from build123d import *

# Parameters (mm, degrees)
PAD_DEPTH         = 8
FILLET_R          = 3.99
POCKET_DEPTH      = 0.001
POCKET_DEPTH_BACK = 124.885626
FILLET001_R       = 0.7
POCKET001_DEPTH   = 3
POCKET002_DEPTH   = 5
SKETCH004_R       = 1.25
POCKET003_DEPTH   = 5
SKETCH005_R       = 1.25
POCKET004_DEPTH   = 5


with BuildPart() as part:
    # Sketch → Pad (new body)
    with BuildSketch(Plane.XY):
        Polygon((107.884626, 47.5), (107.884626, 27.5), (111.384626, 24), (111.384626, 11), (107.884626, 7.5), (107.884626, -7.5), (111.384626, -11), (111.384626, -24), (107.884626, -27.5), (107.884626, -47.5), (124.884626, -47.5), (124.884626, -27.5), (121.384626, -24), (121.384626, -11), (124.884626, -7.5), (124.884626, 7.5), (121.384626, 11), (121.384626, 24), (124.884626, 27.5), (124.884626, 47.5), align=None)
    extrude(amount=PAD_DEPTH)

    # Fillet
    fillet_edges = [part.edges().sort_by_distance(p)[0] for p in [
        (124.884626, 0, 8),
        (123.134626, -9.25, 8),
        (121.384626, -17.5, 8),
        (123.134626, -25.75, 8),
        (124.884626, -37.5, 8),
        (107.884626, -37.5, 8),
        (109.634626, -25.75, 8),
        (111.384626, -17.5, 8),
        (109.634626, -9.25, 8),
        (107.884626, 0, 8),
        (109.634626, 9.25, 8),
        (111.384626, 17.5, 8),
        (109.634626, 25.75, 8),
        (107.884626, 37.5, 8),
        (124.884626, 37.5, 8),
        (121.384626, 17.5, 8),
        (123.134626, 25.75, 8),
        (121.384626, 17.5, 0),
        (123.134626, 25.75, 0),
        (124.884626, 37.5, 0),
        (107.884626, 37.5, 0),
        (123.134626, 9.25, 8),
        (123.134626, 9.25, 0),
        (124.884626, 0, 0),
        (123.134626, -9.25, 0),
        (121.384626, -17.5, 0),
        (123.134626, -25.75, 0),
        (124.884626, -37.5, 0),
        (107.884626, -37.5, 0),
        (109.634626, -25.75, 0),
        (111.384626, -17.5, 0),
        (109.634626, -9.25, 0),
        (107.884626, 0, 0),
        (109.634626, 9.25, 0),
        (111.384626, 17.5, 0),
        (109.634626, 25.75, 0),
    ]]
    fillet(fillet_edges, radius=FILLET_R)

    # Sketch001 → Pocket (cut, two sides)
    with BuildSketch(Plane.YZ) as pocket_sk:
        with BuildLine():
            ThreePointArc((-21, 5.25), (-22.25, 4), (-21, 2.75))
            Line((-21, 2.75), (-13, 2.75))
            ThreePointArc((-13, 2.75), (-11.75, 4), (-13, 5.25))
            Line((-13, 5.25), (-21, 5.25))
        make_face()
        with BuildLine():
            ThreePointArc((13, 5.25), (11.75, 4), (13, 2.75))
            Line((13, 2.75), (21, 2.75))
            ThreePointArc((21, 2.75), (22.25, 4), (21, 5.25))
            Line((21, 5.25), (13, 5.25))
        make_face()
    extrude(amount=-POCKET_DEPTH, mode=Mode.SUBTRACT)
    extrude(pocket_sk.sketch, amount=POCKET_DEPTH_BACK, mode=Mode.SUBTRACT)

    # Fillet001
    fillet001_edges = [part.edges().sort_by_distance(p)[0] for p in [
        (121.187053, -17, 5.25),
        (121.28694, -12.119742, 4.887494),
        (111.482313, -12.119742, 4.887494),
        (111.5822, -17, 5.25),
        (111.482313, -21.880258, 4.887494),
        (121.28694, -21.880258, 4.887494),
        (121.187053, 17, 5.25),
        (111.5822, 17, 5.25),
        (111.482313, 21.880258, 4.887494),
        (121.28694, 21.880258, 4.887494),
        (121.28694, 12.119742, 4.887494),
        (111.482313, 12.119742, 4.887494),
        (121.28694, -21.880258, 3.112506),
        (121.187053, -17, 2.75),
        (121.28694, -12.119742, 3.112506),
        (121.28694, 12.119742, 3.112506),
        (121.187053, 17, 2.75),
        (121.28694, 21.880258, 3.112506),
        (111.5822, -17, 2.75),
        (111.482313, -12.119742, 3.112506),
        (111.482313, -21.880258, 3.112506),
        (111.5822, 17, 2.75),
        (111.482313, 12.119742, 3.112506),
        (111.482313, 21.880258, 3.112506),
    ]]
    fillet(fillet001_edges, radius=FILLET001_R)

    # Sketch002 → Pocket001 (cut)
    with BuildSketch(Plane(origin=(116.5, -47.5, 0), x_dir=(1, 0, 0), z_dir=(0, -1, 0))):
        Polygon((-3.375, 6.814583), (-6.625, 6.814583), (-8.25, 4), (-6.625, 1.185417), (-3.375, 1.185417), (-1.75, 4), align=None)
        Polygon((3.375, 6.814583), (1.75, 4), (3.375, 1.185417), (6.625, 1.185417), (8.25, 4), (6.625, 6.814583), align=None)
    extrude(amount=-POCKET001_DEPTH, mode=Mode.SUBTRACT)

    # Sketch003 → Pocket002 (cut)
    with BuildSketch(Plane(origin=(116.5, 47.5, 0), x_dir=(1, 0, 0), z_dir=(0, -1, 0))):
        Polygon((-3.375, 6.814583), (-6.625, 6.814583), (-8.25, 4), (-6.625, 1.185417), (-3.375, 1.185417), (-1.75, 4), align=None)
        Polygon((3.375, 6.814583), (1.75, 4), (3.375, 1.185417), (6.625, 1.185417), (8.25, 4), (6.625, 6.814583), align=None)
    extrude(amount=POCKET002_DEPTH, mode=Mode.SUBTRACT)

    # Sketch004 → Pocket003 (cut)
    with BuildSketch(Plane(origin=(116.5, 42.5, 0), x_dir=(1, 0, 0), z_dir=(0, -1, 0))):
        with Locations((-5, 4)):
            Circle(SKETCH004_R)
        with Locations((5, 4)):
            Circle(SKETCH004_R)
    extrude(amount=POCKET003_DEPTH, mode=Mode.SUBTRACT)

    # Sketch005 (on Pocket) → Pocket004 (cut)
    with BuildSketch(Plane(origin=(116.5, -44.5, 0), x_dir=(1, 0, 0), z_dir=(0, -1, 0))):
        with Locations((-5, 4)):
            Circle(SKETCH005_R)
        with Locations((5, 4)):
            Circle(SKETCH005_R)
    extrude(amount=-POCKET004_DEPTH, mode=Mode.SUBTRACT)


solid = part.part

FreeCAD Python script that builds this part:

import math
import FreeCAD as App
import Part
import Sketcher
from FreeCAD import Vector
Q = App.Units.Quantity


def edges_at(feature, points):
    """Names of the edges that pass closest to the given points."""
    edges = feature.Shape.Edges
    near = lambda p: min(range(len(edges)), key=lambda i: edges[i].distToShape(Part.Vertex(*p))[0])
    return sorted({f"Edge{near(p) + 1}" for p in points})


def add_polygon(sketch, points):
    """Adds a closed chain of lines whose ends are joined by coincident constraints."""
    first, n = sketch.GeometryCount, len(points)
    for a, b in zip(points, points[1:] + points[:1]):
        sketch.addGeometry(Part.LineSegment(App.Vector(*a, 0), App.Vector(*b, 0)), False)
    for i in range(n):
        sketch.addConstraint(Sketcher.Constraint("Coincident", first + i, 2, first + (i + 1) % n, 1))

doc = App.newDocument("Part")
body = doc.addObject("PartDesign::Body", "Body")

sketch1 = body.newObject("Sketcher::SketchObject", "Sketch")
sketch1.AttachmentSupport = (doc.getObject("XY_Plane"), [""])
sketch1.MapMode = "FlatFace"
add_polygon(sketch1, [(107.9, 47.5), (107.9, 27.5), (111.4, 24), (111.4, 11), (107.9, 7.5), (107.9, -7.5), (111.4, -11), (111.4, -24), (107.9, -27.5), (107.9, -47.5), (124.9, -47.5), (124.9, -27.5), (121.4, -24), (121.4, -11), (124.9, -7.5), (124.9, 7.5), (121.4, 11), (121.4, 24), (124.9, 27.5), (124.9, 47.5)])
sketch1.addConstraint([
    Sketcher.Constraint("Vertical", 0),
    Sketcher.Constraint("Vertical", 2),
    Sketcher.Constraint("Vertical", 4),
    Sketcher.Constraint("Vertical", 6),
    Sketcher.Constraint("Vertical", 8),
    Sketcher.Constraint("Horizontal", 9),
    Sketcher.Constraint("Vertical", 10),
    Sketcher.Constraint("Vertical", 12),
    Sketcher.Constraint("Vertical", 14),
    Sketcher.Constraint("Vertical", 16),
    Sketcher.Constraint("Vertical", 18),
    Sketcher.Constraint("Horizontal", 19),
    Sketcher.Constraint("Symmetric", 2, 2, 5, 2, -1),
    Sketcher.Constraint("Symmetric", 0, 2, 7, 2, -1),
    Sketcher.Constraint("Symmetric", 12, 2, 15, 2, -1),
    Sketcher.Constraint("Symmetric", 10, 2, 17, 2, -1),
    Sketcher.Constraint("Perpendicular", 1, 3),
    Sketcher.Constraint("Perpendicular", 3, 5),
    Sketcher.Constraint("Perpendicular", 5, 7),
    Sketcher.Constraint("Perpendicular", 7, 11),
    Sketcher.Constraint("Perpendicular", 11, 13),
    Sketcher.Constraint("Perpendicular", 13, 15),
    Sketcher.Constraint("Perpendicular", 15, 17),
    Sketcher.Constraint("Horizontal", 7, 2, 10, 2),
    Sketcher.Constraint("Horizontal", 6, 2, 11, 2),
    Sketcher.Constraint("Horizontal", 5, 2, 12, 2),
    Sketcher.Constraint("Horizontal", 4, 2, 13, 2),
    Sketcher.Constraint("Horizontal", 3, 2, 14, 2),
    Sketcher.Constraint("Vertical", 0, 2, 3, 2),
    Sketcher.Constraint("Equal", 0, 8),
    Sketcher.Constraint("DistanceX", 9, 1, 9, 2, Q("17 mm")),
    Sketcher.Constraint("DistanceY", 0, 2, 0, 1, Q("20 mm")),
    Sketcher.Constraint("DistanceY", 2, 2, 2, 1, Q("13 mm")),
    Sketcher.Constraint("DistanceY", 4, 2, 4, 1, Q("15 mm")),
    Sketcher.Constraint("DistanceY", -1, 1, 1, 2, Q("24 mm")),
    Sketcher.Constraint("DistanceX", -1, 1, 0, 2, Q("107.884626 mm")),
])
pad1 = body.newObject("PartDesign::Pad", "Pad")
pad1.Profile = sketch1
pad1.Length = 8
doc.recompute()

fillet = body.newObject("PartDesign::Fillet", "Fillet")
fillet.Base = (pad1, edges_at(pad1, [
    (124.885, 0, 8),
    (123.135, -9.25, 8),
    (121.385, -17.5, 8),
    (123.135, -25.75, 8),
    (124.885, -37.5, 8),
    (107.885, -37.5, 8),
    (109.635, -25.75, 8),
    (111.385, -17.5, 8),
    (109.635, -9.25, 8),
    (107.885, 0, 8),
    (109.635, 9.25, 8),
    (111.385, 17.5, 8),
    (109.635, 25.75, 8),
    (107.885, 37.5, 8),
    (124.885, 37.5, 8),
    (121.385, 17.5, 8),
    (123.135, 25.75, 8),
    (121.385, 17.5, 0),
    (123.135, 25.75, 0),
    (124.885, 37.5, 0),
    (107.885, 37.5, 0),
    (123.135, 9.25, 8),
    (123.135, 9.25, 0),
    (124.885, 0, 0),
    (123.135, -9.25, 0),
    (121.385, -17.5, 0),
    (123.135, -25.75, 0),
    (124.885, -37.5, 0),
    (107.885, -37.5, 0),
    (109.635, -25.75, 0),
    (111.385, -17.5, 0),
    (109.635, -9.25, 0),
    (107.885, 0, 0),
    (109.635, 9.25, 0),
    (111.385, 17.5, 0),
    (109.635, 25.75, 0),
]))
fillet.Radius = 3.99

sketch2 = body.newObject("Sketcher::SketchObject", "Sketch001")
sketch2.AttachmentSupport = (doc.getObject("YZ_Plane"), [""])
sketch2.MapMode = "FlatFace"
sketch2.addGeometry([
    Part.ArcOfCircle(Part.Circle(Vector(-21, 4, 0), Vector(0, 0, 1), 1.2), math.radians(90), math.radians(270)),
    Part.LineSegment(Vector(-21, 2.8, 0), Vector(-13, 2.8, 0)),
    Part.ArcOfCircle(Part.Circle(Vector(-13, 4, 0), Vector(0, 0, 1), 1.2), math.radians(-90), math.radians(90)),
    Part.LineSegment(Vector(-13, 5.2, 0), Vector(-21, 5.2, 0)),
    Part.ArcOfCircle(Part.Circle(Vector(13, 4, 0), Vector(0, 0, 1), 1.2), math.radians(90), math.radians(270)),
    Part.LineSegment(Vector(13, 2.8, 0), Vector(21, 2.8, 0)),
    Part.ArcOfCircle(Part.Circle(Vector(21, 4, 0), Vector(0, 0, 1), 1.2), math.radians(-90), math.radians(90)),
    Part.LineSegment(Vector(21, 5.2, 0), Vector(13, 5.2, 0)),
], False)
sketch2.addConstraint([
    Sketcher.Constraint("Tangent", 0, 2, 1, 1),
    Sketcher.Constraint("Tangent", 1, 2, 2, 1),
    Sketcher.Constraint("Tangent", 2, 2, 3, 1),
    Sketcher.Constraint("Tangent", 3, 2, 0, 1),
    Sketcher.Constraint("Tangent", 4, 2, 5, 1),
    Sketcher.Constraint("Tangent", 5, 2, 6, 1),
    Sketcher.Constraint("Tangent", 6, 2, 7, 1),
    Sketcher.Constraint("Tangent", 7, 2, 4, 1),
    Sketcher.Constraint("Horizontal", 1),
    Sketcher.Constraint("Horizontal", 3),
    Sketcher.Constraint("Horizontal", 5),
    Sketcher.Constraint("Horizontal", 7),
    Sketcher.Constraint("Equal", 2, 4),
    Sketcher.Constraint("Symmetric", 2, 3, 4, 3, -2),
    Sketcher.Constraint("Equal", 3, 5),
    Sketcher.Constraint("DistanceX", 1, 1, 1, 2, Q("8 mm")),
    Sketcher.Constraint("Radius", 0, Q("1.25 mm")),
    Sketcher.Constraint("DistanceX", 0, 3, -1, 1, Q("21 mm")),
    Sketcher.Constraint("DistanceY", -1, 1, 0, 3, Q("4 mm")),
])
pocket1 = body.newObject("PartDesign::Pocket", "Pocket")
pocket1.Profile = sketch2
pocket1.Type = "ThroughAll"
pocket1.Midplane = True
doc.recompute()

fillet2 = body.newObject("PartDesign::Fillet", "Fillet001")
fillet2.Base = (pocket1, edges_at(pocket1, [
    (121.187, -17, 5.25),
    (121.287, -12.12, 4.887),
    (111.482, -12.12, 4.887),
    (111.582, -17, 5.25),
    (111.482, -21.88, 4.887),
    (121.287, -21.88, 4.887),
    (121.187, 17, 5.25),
    (111.582, 17, 5.25),
    (111.482, 21.88, 4.887),
    (121.287, 21.88, 4.887),
    (121.287, 12.12, 4.887),
    (111.482, 12.12, 4.887),
    (121.287, -21.88, 3.113),
    (121.187, -17, 2.75),
    (121.287, -12.12, 3.113),
    (121.287, 12.12, 3.113),
    (121.187, 17, 2.75),
    (121.287, 21.88, 3.113),
    (111.582, -17, 2.75),
    (111.482, -12.12, 3.113),
    (111.482, -21.88, 3.113),
    (111.582, 17, 2.75),
    (111.482, 12.12, 3.113),
    (111.482, 21.88, 3.113),
]))
fillet2.Radius = 0.7

sketch3 = body.newObject("Sketcher::SketchObject", "Sketch002")
sketch3.AttachmentSupport = (doc.getObject("XZ_Plane"), [""])
sketch3.MapMode = "FlatFace"
sketch3.AttachmentOffset = App.Placement(Vector(0, 0, 47.5), App.Rotation())
add_polygon(sketch3, [(113.1, 6.8), (109.9, 6.8), (108.2, 4), (109.9, 1.2), (113.1, 1.2), (114.8, 4)])
add_polygon(sketch3, [(119.9, 6.8), (118.2, 4), (119.9, 1.2), (123.1, 1.2), (124.8, 4), (123.1, 6.8)])
sketch3.addConstraint([
    Sketcher.Constraint("Horizontal", 0),
    Sketcher.Constraint("Horizontal", 3),
    Sketcher.Constraint("Horizontal", 8),
    Sketcher.Constraint("Horizontal", 11),
    Sketcher.Constraint("Parallel", 1, 4),
    Sketcher.Constraint("Parallel", 2, 5),
    Sketcher.Constraint("Parallel", 4, 6),
    Sketcher.Constraint("Parallel", 5, 7),
    Sketcher.Constraint("Parallel", 6, 9),
    Sketcher.Constraint("Parallel", 7, 10),
    Sketcher.Constraint("Horizontal", 1, 2, 4, 2),
    Sketcher.Constraint("Horizontal", 4, 2, 6, 2),
    Sketcher.Constraint("Horizontal", 3, 2, 7, 2),
    Sketcher.Constraint("Horizontal", 6, 2, 9, 2),
    Sketcher.Constraint("Horizontal", 5, 2, 10, 2),
    Sketcher.Constraint("Vertical", 0, 2, 2, 2),
    Sketcher.Constraint("Vertical", 3, 2, 5, 2),
    Sketcher.Constraint("Equal", 3, 8),
    Sketcher.Constraint("Angle", 1, Q("-119.999996 deg")),
    Sketcher.Constraint("DistanceY", -1, 1, 1, 2, Q("4 mm")),
    Sketcher.Constraint("DistanceX", 2, 2, 7, 2, Q("10 mm")),
    Sketcher.Constraint("DistanceX", 0, 2, 0, 1, Q("3.25 mm")),
    Sketcher.Constraint("DistanceX", 1, 2, 4, 2, Q("6.5 mm")),
    Sketcher.Constraint("DistanceX", -1, 1, 1, 2, Q("108.25 mm")),
])
pocket2 = body.newObject("PartDesign::Pocket", "Pocket001")
pocket2.Profile = sketch3
pocket2.Length = 3

sketch4 = body.newObject("Sketcher::SketchObject", "Sketch003")
sketch4.AttachmentSupport = (doc.getObject("XZ_Plane"), [""])
sketch4.MapMode = "FlatFace"
sketch4.AttachmentOffset = App.Placement(Vector(0, 0, -47.5), App.Rotation())
add_polygon(sketch4, [(113.1, 6.8), (109.9, 6.8), (108.2, 4), (109.9, 1.2), (113.1, 1.2), (114.8, 4)])
add_polygon(sketch4, [(119.9, 6.8), (118.2, 4), (119.9, 1.2), (123.1, 1.2), (124.8, 4), (123.1, 6.8)])
sketch4.addConstraint([
    Sketcher.Constraint("Horizontal", 0),
    Sketcher.Constraint("Horizontal", 3),
    Sketcher.Constraint("Horizontal", 8),
    Sketcher.Constraint("Horizontal", 11),
    Sketcher.Constraint("Parallel", 1, 4),
    Sketcher.Constraint("Parallel", 2, 5),
    Sketcher.Constraint("Parallel", 4, 6),
    Sketcher.Constraint("Parallel", 5, 7),
    Sketcher.Constraint("Parallel", 6, 9),
    Sketcher.Constraint("Parallel", 7, 10),
    Sketcher.Constraint("Horizontal", 1, 2, 4, 2),
    Sketcher.Constraint("Horizontal", 4, 2, 6, 2),
    Sketcher.Constraint("Horizontal", 3, 2, 7, 2),
    Sketcher.Constraint("Horizontal", 6, 2, 9, 2),
    Sketcher.Constraint("Horizontal", 5, 2, 10, 2),
    Sketcher.Constraint("Vertical", 0, 2, 2, 2),
    Sketcher.Constraint("Vertical", 3, 2, 5, 2),
    Sketcher.Constraint("Equal", 3, 8),
    Sketcher.Constraint("Angle", 1, Q("-119.999996 deg")),
    Sketcher.Constraint("DistanceY", -1, 1, 1, 2, Q("4 mm")),
    Sketcher.Constraint("DistanceX", 2, 2, 7, 2, Q("10 mm")),
    Sketcher.Constraint("DistanceX", 0, 2, 0, 1, Q("3.25 mm")),
    Sketcher.Constraint("DistanceX", 1, 2, 4, 2, Q("6.5 mm")),
    Sketcher.Constraint("DistanceX", -1, 1, 1, 2, Q("108.25 mm")),
])
pocket3 = body.newObject("PartDesign::Pocket", "Pocket002")
pocket3.Profile = sketch4
pocket3.Length = 5
pocket3.Reversed = True

sketch5 = body.newObject("Sketcher::SketchObject", "Sketch004")
sketch5.AttachmentSupport = (doc.getObject("XZ_Plane"), [""])
sketch5.MapMode = "FlatFace"
sketch5.AttachmentOffset = App.Placement(Vector(0, 0, -42.5), App.Rotation())
sketch5.addGeometry([
    Part.Circle(Vector(111.5, 4, 0), Vector(0, 0, 1), 1.2),
    Part.Circle(Vector(121.5, 4, 0), Vector(0, 0, 1), 1.2),
], False)
sketch5.addConstraint([
    Sketcher.Constraint("Equal", 0, 1),
    Sketcher.Constraint("Horizontal", 0, 3, 1, 3),
    Sketcher.Constraint("Diameter", 0, Q("2.5 mm")),
    Sketcher.Constraint("DistanceY", -1, 1, 0, 3, Q("4 mm")),
    Sketcher.Constraint("DistanceX", 0, 3, 1, 3, Q("10 mm")),
    Sketcher.Constraint("DistanceX", -1, 1, 0, 3, Q("111.5 mm")),
])
pocket4 = body.newObject("PartDesign::Pocket", "Pocket003")
pocket4.Profile = sketch5
pocket4.Length = 5
pocket4.Reversed = True

sketch6 = body.newObject("Sketcher::SketchObject", "Sketch005")
sketch6.AttachmentSupport = (doc.getObject("XZ_Plane"), [""])
sketch6.MapMode = "FlatFace"
sketch6.AttachmentOffset = App.Placement(Vector(0, 0, 44.5), App.Rotation())
sketch6.addGeometry([
    Part.Circle(Vector(111.5, 4, 0), Vector(0, 0, 1), 1.2),
    Part.Circle(Vector(121.5, 4, 0), Vector(0, 0, 1), 1.2),
], False)
sketch6.addConstraint([
    Sketcher.Constraint("Equal", 0, 1),
    Sketcher.Constraint("Horizontal", 0, 3, 1, 3),
    Sketcher.Constraint("Diameter", 0, Q("2.5 mm")),
    Sketcher.Constraint("DistanceY", -1, 1, 0, 3, Q("4 mm")),
    Sketcher.Constraint("DistanceX", 0, 3, 1, 3, Q("10 mm")),
    Sketcher.Constraint("DistanceX", -1, 1, 0, 3, Q("111.5 mm")),
])
pocket5 = body.newObject("PartDesign::Pocket", "Pocket004")
pocket5.Profile = sketch6
pocket5.Length = 5

doc.recompute()
